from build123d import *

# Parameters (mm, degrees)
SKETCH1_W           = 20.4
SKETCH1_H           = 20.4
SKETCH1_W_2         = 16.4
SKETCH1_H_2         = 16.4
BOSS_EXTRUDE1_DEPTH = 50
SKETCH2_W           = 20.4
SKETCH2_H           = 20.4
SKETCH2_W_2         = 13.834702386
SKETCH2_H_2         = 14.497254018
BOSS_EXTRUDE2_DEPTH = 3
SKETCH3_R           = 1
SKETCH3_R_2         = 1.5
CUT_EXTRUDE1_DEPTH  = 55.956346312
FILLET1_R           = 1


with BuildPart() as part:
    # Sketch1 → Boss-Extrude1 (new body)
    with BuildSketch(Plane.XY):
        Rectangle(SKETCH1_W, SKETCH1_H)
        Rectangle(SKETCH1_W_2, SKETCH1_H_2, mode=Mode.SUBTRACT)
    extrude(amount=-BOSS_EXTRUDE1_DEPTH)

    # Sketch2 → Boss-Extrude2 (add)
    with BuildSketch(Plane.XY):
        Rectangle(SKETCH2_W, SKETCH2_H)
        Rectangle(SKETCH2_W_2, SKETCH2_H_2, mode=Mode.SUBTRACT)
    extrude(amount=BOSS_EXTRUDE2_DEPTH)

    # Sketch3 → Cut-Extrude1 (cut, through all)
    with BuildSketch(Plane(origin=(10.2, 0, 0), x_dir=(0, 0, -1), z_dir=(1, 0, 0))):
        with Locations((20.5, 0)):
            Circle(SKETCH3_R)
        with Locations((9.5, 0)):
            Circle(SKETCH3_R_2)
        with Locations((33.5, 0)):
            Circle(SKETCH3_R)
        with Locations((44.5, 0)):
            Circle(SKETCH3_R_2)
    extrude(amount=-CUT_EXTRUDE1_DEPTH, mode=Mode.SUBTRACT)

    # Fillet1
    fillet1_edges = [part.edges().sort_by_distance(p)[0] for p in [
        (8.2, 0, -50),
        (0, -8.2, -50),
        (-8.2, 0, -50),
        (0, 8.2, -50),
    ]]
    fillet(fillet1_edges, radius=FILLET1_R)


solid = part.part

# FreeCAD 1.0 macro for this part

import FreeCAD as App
import Part
import Sketcher


def edges_at(feature, points):
    """Names of the edges that pass closest to the given points."""
    edges = feature.Shape.Edges
    near = lambda p: min(range(len(edges)), key=lambda i: edges[i].distToShape(Part.Vertex(*p))[0])
    return sorted({f"Edge{near(p) + 1}" for p in points})


def add_polygon(sketch, points):
    """Adds a closed chain of lines whose ends are joined by coincident constraints."""
    first, n = sketch.GeometryCount, len(points)
    for a, b in zip(points, points[1:] + points[:1]):
        sketch.addGeometry(Part.LineSegment(App.Vector(*a, 0), App.Vector(*b, 0)), False)
    for i in range(n):
        sketch.addConstraint(Sketcher.Constraint("Coincident", first + i, 2, first + (i + 1) % n, 1))

doc = App.newDocument("Part")
body = doc.addObject("PartDesign::Body", "Body")

# Sketch on XY plane
sketch1 = body.newObject("Sketcher::SketchObject", "Sketch")
sketch1.AttachmentSupport = (doc.getObject("XY_Plane"), [""])
sketch1.MapMode = "FlatFace"
add_polygon(sketch1, [(-10, 10), (-10, -10), (10, -10), (10, 10)])  # lines 0-3
add_polygon(sketch1, [(8, -8), (-8, -8), (-8, 8), (8, 8)])  # lines 4-7
sketch1.addConstraint([
    Sketcher.Constraint("Vertical", 0),
    Sketcher.Constraint("Horizontal", 1),
    Sketcher.Constraint("Vertical", 2),
    Sketcher.Constraint("Horizontal", 3),
    Sketcher.Constraint("Horizontal", 4),
    Sketcher.Constraint("Vertical", 5),
    Sketcher.Constraint("Horizontal", 6),
    Sketcher.Constraint("Vertical", 7),
    Sketcher.Constraint("Symmetric", 0, 2, 2, 2, -1, 1),
    Sketcher.Constraint("Symmetric", 4, 2, 6, 2, -1, 1),
    Sketcher.Constraint("Equal", 3, 0),
    Sketcher.Constraint("Equal", 6, 5),
    Sketcher.Constraint("DistanceX", 1, 1, 1, 2, 20.4),
    Sketcher.Constraint("DistanceX", 4, 2, 4, 1, 16.4),
])
pad1 = body.newObject("PartDesign::Pad", "Pad")
pad1.Profile = sketch1
pad1.Length = 50
pad1.Reversed = True

# Sketch on XY plane
sketch2 = body.newObject("Sketcher::SketchObject", "Sketch001")
sketch2.AttachmentSupport = (doc.getObject("XY_Plane"), [""])
sketch2.MapMode = "FlatFace"
add_polygon(sketch2, [(-10, 10), (-10, -10), (10, -10), (10, 10)])  # lines 0-3
add_polygon(sketch2, [(7, -7), (-7, -7), (-7, 7), (7, 7)])  # lines 4-7
sketch2.addConstraint([
    Sketcher.Constraint("Vertical", 0),
    Sketcher.Constraint("Horizontal", 1),
    Sketcher.Constraint("Vertical", 2),
    Sketcher.Constraint("Horizontal", 3),
    Sketcher.Constraint("Horizontal", 4),
    Sketcher.Constraint("Vertical", 5),
    Sketcher.Constraint("Horizontal", 6),
    Sketcher.Constraint("Vertical", 7),
    Sketcher.Constraint("Symmetric", 0, 2, 2, 2, -1, 1),
    Sketcher.Constraint("Symmetric", 4, 2, 6, 2, -1, 1),
    Sketcher.Constraint("Equal", 3, 0),
    Sketcher.Constraint("DistanceX", 1, 1, 1, 2, 20.4),
    Sketcher.Constraint("DistanceX", 4, 2, 4, 1, 13.834702),
    Sketcher.Constraint("DistanceY", 5, 1, 5, 2, 14.497254),
])
pad2 = body.newObject("PartDesign::Pad", "Pad001")
pad2.Profile = sketch2
pad2.Length = 3

# Sketch on YZ plane
sketch3 = body.newObject("Sketcher::SketchObject", "Sketch002")
sketch3.AttachmentSupport = (doc.getObject("YZ_Plane"), [""])
sketch3.MapMode = "FlatFace"
sketch3.AttachmentOffset = App.Placement(App.Vector(0, 0, 10.2), App.Rotation())
sketch3.addGeometry([
    Part.Circle(App.Vector(0, -20.5, 0), App.Vector(0, 0, 1), 1),
    Part.Circle(App.Vector(0, -9.5, 0), App.Vector(0, 0, 1), 1.5),
    Part.Circle(App.Vector(0, -33.5, 0), App.Vector(0, 0, 1), 1),
    Part.Circle(App.Vector(0, -44.5, 0), App.Vector(0, 0, 1), 1.5),
], False)
sketch3.addConstraint([
    Sketcher.Constraint("Equal", 0, 2),
    Sketcher.Constraint("Equal", 1, 3),
    Sketcher.Constraint("PointOnObject", 0, 3, -2),
    Sketcher.Constraint("PointOnObject", 1, 3, -2),
    Sketcher.Constraint("PointOnObject", 2, 3, -2),
    Sketcher.Constraint("PointOnObject", 3, 3, -2),
    Sketcher.Constraint("Diameter", 0, 2.0),
    Sketcher.Constraint("Diameter", 1, 3.0),
    Sketcher.Constraint("DistanceY", 0, 3, 1, 3, 11.0),
    Sketcher.Constraint("DistanceY", 2, 3, 0, 3, 13.0),
    Sketcher.Constraint("DistanceY", 3, 3, 2, 3, 11.0),
    Sketcher.Constraint("DistanceY", 0, 3, -1, 1, 20.5),
])
pocket1 = body.newObject("PartDesign::Pocket", "Pocket")
pocket1.Profile = sketch3
pocket1.Type = "ThroughAll"
doc.recompute()

fillet = body.newObject("PartDesign::Fillet", "Fillet")
fillet.Base = (pocket1, edges_at(pocket1, [
    (8.2, 0, -50),
    (0, -8.2, -50),
    (-8.2, 0, -50),
    (0, 8.2, -50),
]))
fillet.Radius = 1

doc.recompute()
